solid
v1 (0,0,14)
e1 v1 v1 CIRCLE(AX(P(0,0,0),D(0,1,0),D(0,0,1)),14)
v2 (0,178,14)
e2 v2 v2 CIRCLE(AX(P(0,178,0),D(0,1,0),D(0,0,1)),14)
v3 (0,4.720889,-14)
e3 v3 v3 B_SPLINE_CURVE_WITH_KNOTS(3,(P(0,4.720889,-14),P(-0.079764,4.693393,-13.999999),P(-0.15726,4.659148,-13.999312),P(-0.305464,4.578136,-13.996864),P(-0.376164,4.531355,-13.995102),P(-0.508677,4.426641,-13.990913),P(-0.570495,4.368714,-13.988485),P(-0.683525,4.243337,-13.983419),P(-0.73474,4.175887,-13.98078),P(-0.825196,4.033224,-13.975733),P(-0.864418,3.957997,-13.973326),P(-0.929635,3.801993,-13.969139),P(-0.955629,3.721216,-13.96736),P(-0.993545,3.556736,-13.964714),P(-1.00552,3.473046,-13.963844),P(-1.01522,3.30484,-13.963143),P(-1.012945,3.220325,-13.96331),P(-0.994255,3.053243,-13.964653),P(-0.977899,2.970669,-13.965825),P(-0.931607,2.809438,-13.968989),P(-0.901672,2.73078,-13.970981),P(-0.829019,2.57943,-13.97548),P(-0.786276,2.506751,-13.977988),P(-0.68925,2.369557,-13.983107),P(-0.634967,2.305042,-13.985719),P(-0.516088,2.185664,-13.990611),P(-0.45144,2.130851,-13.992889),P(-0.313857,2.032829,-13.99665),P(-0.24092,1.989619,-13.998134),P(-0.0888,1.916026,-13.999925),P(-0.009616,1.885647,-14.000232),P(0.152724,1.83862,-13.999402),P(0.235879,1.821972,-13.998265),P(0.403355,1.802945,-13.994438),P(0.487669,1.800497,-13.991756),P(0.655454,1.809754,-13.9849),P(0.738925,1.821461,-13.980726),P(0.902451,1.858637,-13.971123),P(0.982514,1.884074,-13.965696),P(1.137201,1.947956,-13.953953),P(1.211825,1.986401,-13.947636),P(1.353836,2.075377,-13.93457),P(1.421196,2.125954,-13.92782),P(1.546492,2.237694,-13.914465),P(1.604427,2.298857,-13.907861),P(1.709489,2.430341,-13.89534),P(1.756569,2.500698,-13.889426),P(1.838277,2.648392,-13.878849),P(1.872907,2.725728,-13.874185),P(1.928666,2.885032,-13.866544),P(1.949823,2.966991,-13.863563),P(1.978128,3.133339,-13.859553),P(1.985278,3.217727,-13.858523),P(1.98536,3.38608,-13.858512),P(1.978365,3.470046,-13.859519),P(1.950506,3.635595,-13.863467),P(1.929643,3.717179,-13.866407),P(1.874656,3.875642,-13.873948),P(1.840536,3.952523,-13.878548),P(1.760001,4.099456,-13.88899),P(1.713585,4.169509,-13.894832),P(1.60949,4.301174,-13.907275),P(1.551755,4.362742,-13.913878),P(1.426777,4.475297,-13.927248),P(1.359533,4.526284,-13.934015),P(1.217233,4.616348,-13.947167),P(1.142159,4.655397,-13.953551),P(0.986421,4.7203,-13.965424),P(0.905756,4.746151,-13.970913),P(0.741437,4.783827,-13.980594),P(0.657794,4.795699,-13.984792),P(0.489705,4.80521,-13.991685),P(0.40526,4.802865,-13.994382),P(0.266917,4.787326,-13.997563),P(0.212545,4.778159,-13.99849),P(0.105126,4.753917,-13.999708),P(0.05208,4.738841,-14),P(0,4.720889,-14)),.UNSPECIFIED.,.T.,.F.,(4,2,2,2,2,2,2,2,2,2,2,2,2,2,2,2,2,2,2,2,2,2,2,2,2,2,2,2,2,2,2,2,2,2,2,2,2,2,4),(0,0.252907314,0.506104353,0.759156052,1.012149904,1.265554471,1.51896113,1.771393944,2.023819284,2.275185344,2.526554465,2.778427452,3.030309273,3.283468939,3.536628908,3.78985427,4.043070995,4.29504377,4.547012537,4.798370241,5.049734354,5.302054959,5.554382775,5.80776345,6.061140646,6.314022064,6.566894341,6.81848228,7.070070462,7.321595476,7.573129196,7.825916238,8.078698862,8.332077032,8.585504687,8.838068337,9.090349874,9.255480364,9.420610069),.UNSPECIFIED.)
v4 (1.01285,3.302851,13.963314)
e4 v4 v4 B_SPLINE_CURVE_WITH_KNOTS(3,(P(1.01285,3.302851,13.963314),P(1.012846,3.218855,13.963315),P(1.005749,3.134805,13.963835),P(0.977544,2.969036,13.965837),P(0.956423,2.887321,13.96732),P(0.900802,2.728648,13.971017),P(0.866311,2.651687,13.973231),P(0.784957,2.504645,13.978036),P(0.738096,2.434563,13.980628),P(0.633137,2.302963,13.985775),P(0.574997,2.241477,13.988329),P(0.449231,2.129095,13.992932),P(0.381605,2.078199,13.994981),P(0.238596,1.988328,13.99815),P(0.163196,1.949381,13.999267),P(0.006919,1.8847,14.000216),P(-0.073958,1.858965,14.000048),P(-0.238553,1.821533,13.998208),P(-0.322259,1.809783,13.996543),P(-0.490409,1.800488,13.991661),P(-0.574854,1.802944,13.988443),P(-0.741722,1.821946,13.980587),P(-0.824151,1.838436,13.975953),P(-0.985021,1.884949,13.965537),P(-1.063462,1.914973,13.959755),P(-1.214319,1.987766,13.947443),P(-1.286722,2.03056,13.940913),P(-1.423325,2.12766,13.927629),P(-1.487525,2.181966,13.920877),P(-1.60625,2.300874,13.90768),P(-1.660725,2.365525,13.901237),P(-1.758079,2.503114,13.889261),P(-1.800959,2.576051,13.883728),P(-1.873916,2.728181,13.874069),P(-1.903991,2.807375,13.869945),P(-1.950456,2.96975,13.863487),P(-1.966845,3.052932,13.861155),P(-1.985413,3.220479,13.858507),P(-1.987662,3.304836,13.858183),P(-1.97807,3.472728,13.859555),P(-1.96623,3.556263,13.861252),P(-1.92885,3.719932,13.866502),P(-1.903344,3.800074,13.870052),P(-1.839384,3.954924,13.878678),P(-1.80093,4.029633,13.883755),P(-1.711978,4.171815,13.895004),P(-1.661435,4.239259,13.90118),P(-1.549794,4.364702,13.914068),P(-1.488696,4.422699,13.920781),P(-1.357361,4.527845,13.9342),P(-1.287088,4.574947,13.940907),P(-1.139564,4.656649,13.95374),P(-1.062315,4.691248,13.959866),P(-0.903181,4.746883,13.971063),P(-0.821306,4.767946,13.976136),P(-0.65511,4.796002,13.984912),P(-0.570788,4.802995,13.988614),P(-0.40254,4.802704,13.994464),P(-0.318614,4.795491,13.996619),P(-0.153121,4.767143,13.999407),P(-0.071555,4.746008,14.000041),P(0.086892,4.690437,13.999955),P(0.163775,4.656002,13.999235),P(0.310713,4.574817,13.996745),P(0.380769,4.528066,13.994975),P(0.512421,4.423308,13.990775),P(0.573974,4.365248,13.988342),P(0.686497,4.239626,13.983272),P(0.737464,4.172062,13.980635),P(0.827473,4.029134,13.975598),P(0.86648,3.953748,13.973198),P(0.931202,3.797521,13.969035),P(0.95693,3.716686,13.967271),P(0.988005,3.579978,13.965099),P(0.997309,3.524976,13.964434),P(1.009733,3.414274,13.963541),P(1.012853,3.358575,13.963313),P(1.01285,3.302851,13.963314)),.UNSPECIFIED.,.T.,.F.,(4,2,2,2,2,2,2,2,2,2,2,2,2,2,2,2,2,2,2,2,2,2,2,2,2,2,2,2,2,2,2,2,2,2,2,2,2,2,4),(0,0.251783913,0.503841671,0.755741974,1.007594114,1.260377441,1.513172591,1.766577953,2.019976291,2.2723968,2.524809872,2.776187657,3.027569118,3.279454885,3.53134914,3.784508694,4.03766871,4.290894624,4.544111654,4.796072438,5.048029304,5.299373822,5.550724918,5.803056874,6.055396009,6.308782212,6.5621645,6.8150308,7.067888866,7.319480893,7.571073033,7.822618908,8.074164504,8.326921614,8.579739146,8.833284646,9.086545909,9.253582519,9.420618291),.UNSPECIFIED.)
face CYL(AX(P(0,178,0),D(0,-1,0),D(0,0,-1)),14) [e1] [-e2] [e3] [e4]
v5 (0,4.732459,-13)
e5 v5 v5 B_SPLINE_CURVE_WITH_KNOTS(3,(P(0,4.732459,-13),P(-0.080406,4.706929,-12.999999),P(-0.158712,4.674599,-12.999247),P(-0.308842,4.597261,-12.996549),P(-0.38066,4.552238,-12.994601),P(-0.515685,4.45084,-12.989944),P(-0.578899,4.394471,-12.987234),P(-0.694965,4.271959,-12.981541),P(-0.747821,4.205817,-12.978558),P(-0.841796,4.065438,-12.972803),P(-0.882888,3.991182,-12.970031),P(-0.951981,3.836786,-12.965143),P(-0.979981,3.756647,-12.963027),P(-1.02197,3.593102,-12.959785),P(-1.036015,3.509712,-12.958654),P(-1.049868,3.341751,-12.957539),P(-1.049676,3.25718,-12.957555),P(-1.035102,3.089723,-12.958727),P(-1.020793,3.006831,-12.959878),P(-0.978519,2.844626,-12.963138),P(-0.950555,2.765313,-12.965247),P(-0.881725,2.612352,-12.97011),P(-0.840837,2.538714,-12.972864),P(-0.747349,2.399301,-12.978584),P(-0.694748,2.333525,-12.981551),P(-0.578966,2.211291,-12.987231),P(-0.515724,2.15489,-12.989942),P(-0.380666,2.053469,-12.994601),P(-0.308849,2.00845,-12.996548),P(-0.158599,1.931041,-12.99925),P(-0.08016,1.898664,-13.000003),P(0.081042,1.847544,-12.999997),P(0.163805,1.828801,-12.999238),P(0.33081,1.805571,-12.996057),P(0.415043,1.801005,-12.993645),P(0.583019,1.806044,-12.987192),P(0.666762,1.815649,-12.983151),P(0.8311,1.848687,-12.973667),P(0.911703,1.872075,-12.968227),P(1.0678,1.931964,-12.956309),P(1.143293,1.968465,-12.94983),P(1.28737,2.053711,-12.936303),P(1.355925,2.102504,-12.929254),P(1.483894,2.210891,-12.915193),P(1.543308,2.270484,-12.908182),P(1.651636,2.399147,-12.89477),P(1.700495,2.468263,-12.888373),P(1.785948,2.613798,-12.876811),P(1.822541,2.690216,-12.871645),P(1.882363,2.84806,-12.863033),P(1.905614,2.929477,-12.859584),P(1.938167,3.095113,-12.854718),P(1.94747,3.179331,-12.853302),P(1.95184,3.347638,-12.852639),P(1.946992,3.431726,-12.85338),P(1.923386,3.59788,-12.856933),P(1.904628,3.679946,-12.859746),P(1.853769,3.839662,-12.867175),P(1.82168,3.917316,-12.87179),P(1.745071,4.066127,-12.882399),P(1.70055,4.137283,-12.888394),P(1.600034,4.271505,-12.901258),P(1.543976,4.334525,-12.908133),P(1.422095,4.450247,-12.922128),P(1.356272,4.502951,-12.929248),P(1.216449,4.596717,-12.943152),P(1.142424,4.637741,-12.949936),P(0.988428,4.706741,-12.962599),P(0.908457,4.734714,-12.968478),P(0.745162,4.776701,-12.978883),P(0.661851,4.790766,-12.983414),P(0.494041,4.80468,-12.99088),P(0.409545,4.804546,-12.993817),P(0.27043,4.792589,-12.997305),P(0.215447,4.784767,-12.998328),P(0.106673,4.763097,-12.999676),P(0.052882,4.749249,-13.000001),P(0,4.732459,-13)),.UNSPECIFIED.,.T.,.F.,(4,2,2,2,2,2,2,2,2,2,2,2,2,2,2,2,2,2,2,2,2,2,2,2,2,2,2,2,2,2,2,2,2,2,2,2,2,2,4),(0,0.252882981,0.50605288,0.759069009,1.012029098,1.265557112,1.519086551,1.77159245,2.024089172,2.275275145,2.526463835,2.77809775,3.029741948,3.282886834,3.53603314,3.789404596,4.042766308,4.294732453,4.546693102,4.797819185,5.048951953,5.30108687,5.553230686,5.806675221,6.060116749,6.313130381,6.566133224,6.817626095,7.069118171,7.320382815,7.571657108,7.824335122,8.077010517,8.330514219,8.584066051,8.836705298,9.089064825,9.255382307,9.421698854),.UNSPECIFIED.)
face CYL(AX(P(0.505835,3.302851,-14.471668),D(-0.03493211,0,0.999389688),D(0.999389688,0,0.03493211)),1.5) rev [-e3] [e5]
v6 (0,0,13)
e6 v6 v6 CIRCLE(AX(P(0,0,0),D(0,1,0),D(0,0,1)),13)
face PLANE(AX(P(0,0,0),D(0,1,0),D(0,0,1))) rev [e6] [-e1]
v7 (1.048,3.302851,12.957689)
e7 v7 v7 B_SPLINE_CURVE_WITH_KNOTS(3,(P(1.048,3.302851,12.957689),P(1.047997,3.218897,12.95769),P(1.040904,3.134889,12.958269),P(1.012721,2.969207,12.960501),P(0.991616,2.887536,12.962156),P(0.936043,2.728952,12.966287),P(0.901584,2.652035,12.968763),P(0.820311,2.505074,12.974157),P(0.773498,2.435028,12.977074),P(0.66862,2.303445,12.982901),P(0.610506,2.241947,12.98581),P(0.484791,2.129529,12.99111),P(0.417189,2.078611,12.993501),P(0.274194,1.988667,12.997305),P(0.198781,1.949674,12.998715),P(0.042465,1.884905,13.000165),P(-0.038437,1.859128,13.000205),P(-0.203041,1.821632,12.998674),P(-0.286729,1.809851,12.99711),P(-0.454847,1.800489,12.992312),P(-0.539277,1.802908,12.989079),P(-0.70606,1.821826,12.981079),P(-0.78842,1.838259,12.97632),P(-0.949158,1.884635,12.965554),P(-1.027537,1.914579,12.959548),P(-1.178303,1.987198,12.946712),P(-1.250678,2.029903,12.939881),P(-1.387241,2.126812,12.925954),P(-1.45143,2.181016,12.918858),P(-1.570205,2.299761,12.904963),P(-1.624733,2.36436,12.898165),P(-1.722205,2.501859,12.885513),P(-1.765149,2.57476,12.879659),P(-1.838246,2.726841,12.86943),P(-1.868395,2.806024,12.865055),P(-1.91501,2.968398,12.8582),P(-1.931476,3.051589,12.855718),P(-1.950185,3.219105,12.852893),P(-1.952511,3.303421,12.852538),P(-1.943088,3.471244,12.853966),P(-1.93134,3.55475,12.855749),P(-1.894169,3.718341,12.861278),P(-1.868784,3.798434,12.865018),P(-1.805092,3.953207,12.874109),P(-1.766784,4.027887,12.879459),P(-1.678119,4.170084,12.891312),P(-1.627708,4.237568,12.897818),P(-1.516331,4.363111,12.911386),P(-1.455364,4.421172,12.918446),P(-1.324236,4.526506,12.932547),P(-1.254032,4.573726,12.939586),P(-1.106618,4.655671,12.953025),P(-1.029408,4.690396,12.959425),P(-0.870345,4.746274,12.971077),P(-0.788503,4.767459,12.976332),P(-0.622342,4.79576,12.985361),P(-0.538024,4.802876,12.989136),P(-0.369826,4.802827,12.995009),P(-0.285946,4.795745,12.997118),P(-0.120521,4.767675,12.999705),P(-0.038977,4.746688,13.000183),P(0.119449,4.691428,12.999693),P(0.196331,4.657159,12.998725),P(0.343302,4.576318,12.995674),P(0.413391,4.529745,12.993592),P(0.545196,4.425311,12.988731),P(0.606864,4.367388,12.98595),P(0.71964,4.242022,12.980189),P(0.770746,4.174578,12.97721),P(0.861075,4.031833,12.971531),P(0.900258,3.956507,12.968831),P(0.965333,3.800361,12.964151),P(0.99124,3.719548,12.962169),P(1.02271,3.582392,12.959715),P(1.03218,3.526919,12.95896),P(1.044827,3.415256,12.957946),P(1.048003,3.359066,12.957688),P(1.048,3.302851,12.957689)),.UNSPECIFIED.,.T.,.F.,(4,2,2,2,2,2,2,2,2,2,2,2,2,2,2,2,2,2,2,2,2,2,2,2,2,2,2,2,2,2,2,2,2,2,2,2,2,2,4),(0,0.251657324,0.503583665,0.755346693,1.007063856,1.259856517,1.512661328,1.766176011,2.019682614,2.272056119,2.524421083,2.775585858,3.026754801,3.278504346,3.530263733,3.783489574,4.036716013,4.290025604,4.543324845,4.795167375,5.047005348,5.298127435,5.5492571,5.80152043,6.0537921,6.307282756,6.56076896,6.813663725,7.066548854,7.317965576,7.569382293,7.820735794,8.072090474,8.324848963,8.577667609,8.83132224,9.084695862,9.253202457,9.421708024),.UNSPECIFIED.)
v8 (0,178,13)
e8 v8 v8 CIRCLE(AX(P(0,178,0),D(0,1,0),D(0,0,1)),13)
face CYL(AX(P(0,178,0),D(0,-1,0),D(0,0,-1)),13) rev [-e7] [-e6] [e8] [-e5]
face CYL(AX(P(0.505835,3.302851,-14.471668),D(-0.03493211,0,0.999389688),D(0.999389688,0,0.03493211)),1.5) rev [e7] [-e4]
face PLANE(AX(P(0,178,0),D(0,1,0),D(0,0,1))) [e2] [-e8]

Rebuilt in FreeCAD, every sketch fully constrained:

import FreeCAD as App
import Part
import Sketcher
from FreeCAD import Vector

doc = App.newDocument("Part")
body = doc.addObject("PartDesign::Body", "Body")

# Sketch on XZ plane
sketch1 = body.newObject("Sketcher::SketchObject", "Sketch")
sketch1.AttachmentSupport = (doc.getObject("XZ_Plane"), [""])
sketch1.MapMode = "FlatFace"
sketch1.addGeometry([
    Part.Circle(Vector(0, 0, 0), Vector(0, 0, 1), 14),
    Part.Circle(Vector(0, 0, 0), Vector(0, 0, 1), 13),
], False)
sketch1.addConstraint([
    Sketcher.Constraint("Coincident", 0, 3, -1, 1),
    Sketcher.Constraint("Coincident", 1, 3, -1, 1),
    Sketcher.Constraint("Diameter", 0, 28.0),
    Sketcher.Constraint("Diameter", 1, 26.0),
])
pad1 = body.newObject("PartDesign::Pad", "Pad")
pad1.Profile = sketch1
pad1.Length = 178
pad1.Reversed = True

# Sketch on an angled plane
sketch2 = body.newObject("Sketcher::SketchObject", "Sketch001")
sketch2.Placement = App.Placement(Vector(-0.611312, 0, 17.48932), App.Rotation(Vector(0.999389688, 0, 0.03493211), Vector(0, 1.000000001, 0), Vector(-0.03493211, 0, 0.999389688), "ZXY"))
sketch2.addGeometry(Part.Circle(Vector(0, 3.302851, 0), Vector(0, 0, 1), 1.5), False)
sketch2.addConstraint([
    Sketcher.Constraint("PointOnObject", 0, 3, -2),
    Sketcher.Constraint("Diameter", 0, 3.0),
    Sketcher.Constraint("DistanceY", -1, 1, 0, 3, 3.302851),
])
pocket1 = body.newObject("PartDesign::Pocket", "Pocket")
pocket1.Profile = sketch2
pocket1.Type = "ThroughAll"
pocket1.Midplane = True

doc.recompute()
